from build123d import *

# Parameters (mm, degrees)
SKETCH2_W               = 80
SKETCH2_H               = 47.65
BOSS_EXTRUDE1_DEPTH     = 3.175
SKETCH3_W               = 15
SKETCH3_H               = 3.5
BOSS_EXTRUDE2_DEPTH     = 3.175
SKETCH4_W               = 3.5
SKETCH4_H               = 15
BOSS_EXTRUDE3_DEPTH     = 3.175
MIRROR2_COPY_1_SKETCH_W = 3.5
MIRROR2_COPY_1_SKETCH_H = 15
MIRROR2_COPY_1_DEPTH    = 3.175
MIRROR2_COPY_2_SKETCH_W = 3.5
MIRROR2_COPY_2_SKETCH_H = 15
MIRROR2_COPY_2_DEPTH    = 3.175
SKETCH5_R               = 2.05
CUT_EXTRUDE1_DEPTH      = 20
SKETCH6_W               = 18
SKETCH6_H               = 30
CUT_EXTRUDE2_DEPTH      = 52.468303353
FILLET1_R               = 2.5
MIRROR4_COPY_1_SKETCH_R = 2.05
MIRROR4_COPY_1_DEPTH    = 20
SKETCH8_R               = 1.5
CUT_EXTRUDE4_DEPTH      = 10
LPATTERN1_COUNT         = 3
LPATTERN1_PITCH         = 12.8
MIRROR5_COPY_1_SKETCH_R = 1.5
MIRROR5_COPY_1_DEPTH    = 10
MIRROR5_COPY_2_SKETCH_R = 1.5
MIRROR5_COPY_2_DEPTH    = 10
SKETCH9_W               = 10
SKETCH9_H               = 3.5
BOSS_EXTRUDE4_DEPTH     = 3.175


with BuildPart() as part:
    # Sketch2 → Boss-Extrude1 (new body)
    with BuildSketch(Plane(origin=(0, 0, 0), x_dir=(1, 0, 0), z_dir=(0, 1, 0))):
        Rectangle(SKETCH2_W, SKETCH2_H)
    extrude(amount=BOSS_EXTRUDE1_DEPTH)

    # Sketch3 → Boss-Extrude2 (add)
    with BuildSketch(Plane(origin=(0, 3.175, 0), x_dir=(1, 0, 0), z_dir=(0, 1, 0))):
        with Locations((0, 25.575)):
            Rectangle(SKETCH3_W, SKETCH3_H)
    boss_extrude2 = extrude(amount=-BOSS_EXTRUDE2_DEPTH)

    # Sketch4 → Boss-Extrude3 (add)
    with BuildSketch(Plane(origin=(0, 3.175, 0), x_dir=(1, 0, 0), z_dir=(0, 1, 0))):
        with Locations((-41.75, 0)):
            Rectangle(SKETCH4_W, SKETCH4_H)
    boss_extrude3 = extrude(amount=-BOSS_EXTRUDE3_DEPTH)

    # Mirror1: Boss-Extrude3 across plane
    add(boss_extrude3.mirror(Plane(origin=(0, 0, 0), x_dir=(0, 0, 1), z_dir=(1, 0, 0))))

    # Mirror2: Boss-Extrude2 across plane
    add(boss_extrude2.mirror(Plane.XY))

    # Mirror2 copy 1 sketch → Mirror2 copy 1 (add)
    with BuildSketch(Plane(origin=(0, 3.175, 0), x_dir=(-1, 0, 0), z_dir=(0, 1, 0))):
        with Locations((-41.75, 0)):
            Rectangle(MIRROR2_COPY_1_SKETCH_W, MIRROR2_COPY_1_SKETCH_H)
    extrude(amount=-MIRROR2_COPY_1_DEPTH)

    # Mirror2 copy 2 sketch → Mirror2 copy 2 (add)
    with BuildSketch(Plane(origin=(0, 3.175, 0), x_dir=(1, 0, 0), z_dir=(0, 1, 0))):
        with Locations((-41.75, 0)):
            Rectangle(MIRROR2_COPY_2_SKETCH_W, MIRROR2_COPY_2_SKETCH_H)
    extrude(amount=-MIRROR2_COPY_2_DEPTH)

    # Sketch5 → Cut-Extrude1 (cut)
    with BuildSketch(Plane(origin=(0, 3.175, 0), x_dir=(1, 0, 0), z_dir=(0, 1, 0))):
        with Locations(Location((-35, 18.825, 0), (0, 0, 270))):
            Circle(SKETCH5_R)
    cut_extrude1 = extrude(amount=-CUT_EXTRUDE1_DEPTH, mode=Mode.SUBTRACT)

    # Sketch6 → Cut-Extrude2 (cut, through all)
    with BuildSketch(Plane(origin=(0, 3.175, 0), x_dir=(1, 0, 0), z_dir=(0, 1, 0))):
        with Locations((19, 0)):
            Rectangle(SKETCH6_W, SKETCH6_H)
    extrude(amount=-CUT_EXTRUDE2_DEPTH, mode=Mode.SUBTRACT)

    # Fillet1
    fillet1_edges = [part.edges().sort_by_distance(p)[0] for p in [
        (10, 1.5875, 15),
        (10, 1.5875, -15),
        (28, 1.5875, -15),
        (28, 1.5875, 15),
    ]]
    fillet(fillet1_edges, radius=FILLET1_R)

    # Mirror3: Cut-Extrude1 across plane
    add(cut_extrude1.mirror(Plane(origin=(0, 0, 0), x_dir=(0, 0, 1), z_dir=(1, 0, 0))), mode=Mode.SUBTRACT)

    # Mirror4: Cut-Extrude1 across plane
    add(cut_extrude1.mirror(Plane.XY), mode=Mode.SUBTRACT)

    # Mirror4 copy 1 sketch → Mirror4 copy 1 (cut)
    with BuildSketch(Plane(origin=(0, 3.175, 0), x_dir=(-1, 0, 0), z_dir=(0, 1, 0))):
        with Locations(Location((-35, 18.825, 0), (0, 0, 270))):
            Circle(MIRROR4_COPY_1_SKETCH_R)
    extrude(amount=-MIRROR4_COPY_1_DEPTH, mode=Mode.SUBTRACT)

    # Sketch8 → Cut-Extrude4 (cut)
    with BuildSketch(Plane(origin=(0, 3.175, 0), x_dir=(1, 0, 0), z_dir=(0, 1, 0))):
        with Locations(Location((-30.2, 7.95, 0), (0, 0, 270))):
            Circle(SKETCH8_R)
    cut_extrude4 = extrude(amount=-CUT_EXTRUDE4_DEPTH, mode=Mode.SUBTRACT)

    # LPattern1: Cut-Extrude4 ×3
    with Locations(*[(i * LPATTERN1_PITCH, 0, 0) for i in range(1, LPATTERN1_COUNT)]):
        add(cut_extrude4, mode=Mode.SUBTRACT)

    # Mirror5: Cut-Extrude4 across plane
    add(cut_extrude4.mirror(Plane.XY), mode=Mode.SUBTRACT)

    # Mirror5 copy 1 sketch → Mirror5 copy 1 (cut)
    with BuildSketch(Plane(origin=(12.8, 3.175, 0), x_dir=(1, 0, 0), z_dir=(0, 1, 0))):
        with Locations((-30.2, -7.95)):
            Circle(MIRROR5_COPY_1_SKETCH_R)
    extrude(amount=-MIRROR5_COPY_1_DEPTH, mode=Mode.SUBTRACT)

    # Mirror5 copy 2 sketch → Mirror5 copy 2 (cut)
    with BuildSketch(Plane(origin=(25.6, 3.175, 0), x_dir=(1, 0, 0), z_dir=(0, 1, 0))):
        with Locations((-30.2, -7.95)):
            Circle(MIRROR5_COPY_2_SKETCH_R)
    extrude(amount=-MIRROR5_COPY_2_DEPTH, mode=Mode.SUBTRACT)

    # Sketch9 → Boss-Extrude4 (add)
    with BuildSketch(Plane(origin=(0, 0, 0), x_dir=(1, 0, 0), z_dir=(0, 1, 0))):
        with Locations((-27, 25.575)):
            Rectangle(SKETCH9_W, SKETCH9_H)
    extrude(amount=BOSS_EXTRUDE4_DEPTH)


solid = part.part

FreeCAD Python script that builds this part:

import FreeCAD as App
import Part
import Sketcher


def edges_at(feature, points):
    """Names of the edges that pass closest to the given points."""
    edges = feature.Shape.Edges
    near = lambda p: min(range(len(edges)), key=lambda i: edges[i].distToShape(Part.Vertex(*p))[0])
    return sorted({f"Edge{near(p) + 1}" for p in points})

doc = App.newDocument("Part")
body = doc.addObject("PartDesign::Body", "Body")

sketch1 = body.newObject("Sketcher::SketchObject", "Sketch")
sketch1.AttachmentSupport = (doc.getObject("XZ_Plane"), [""])
sketch1.MapMode = "FlatFace"
sketch1.addGeometry(Part.LineSegment(App.Vector(-40, -23.825, 0), App.Vector(-40, 23.825, 0)), False)
sketch1.addGeometry(Part.LineSegment(App.Vector(-40, 23.825, 0), App.Vector(40, 23.825, 0)), False)
sketch1.addGeometry(Part.LineSegment(App.Vector(40, 23.825, 0), App.Vector(40, -23.825, 0)), False)
sketch1.addGeometry(Part.LineSegment(App.Vector(40, -23.825, 0), App.Vector(-40, -23.825, 0)), False)
sketch1.addConstraint(Sketcher.Constraint("Coincident", 0, 2, 1, 1))
sketch1.addConstraint(Sketcher.Constraint("Coincident", 1, 2, 2, 1))
sketch1.addConstraint(Sketcher.Constraint("Coincident", 2, 2, 3, 1))
sketch1.addConstraint(Sketcher.Constraint("Coincident", 3, 2, 0, 1))
sketch1.addConstraint(Sketcher.Constraint("Vertical", 0))
sketch1.addConstraint(Sketcher.Constraint("Horizontal", 1))
sketch1.addConstraint(Sketcher.Constraint("Vertical", 2))
sketch1.addConstraint(Sketcher.Constraint("Horizontal", 3))
sketch1.addConstraint(Sketcher.Constraint("Symmetric", 0, 2, 2, 2, -1, 1))
sketch1.addConstraint(Sketcher.Constraint("DistanceX", 1, 1, 1, 2, 80.0))
sketch1.addConstraint(Sketcher.Constraint("DistanceY", 0, 1, 0, 2, 47.65))
pad1 = body.newObject("PartDesign::Pad", "Pad")
pad1.Profile = sketch1
pad1.Length = 3.175
pad1.Reversed = True

sketch2 = body.newObject("Sketcher::SketchObject", "Sketch001")
sketch2.AttachmentSupport = (doc.getObject("XZ_Plane"), [""])
sketch2.MapMode = "FlatFace"
sketch2.AttachmentOffset = App.Placement(App.Vector(0, 0, -3.175), App.Rotation())
sketch2.addGeometry(Part.LineSegment(App.Vector(-7.5, -27.325, 0), App.Vector(-7.5, -23.825, 0)), False)
sketch2.addGeometry(Part.LineSegment(App.Vector(-7.5, -23.825, 0), App.Vector(7.5, -23.825, 0)), False)
sketch2.addGeometry(Part.LineSegment(App.Vector(7.5, -23.825, 0), App.Vector(7.5, -27.325, 0)), False)
sketch2.addGeometry(Part.LineSegment(App.Vector(7.5, -27.325, 0), App.Vector(-7.5, -27.325, 0)), False)
sketch2.addConstraint(Sketcher.Constraint("Coincident", 0, 2, 1, 1))
sketch2.addConstraint(Sketcher.Constraint("Coincident", 1, 2, 2, 1))
sketch2.addConstraint(Sketcher.Constraint("Coincident", 2, 2, 3, 1))
sketch2.addConstraint(Sketcher.Constraint("Coincident", 3, 2, 0, 1))
sketch2.addConstraint(Sketcher.Constraint("Vertical", 0))
sketch2.addConstraint(Sketcher.Constraint("Horizontal", 1))
sketch2.addConstraint(Sketcher.Constraint("Vertical", 2))
sketch2.addConstraint(Sketcher.Constraint("Horizontal", 3))
sketch2.addConstraint(Sketcher.Constraint("DistanceX", 1, 1, 1, 2, 15.0))
sketch2.addConstraint(Sketcher.Constraint("DistanceY", 0, 1, 0, 2, 3.5))
sketch2.addConstraint(Sketcher.Constraint("DistanceX", 0, 2, -1, 1, 7.5))
sketch2.addConstraint(Sketcher.Constraint("DistanceY", 0, 2, -1, 1, 23.825))
pad2 = body.newObject("PartDesign::Pad", "Pad001")
pad2.Profile = sketch2
pad2.Length = 3.175

sketch3 = body.newObject("Sketcher::SketchObject", "Sketch002")
sketch3.AttachmentSupport = (doc.getObject("XZ_Plane"), [""])
sketch3.MapMode = "FlatFace"
sketch3.AttachmentOffset = App.Placement(App.Vector(0, 0, -3.175), App.Rotation())
sketch3.addGeometry(Part.LineSegment(App.Vector(-43.5, -7.5, 0), App.Vector(-43.5, 7.5, 0)), False)
sketch3.addGeometry(Part.LineSegment(App.Vector(-43.5, 7.5, 0), App.Vector(-40, 7.5, 0)), False)
sketch3.addGeometry(Part.LineSegment(App.Vector(-40, 7.5, 0), App.Vector(-40, -7.5, 0)), False)
sketch3.addGeometry(Part.LineSegment(App.Vector(-40, -7.5, 0), App.Vector(-43.5, -7.5, 0)), False)
sketch3.addConstraint(Sketcher.Constraint("Coincident", 0, 2, 1, 1))
sketch3.addConstraint(Sketcher.Constraint("Coincident", 1, 2, 2, 1))
sketch3.addConstraint(Sketcher.Constraint("Coincident", 2, 2, 3, 1))
sketch3.addConstraint(Sketcher.Constraint("Coincident", 3, 2, 0, 1))
sketch3.addConstraint(Sketcher.Constraint("Vertical", 0))
sketch3.addConstraint(Sketcher.Constraint("Horizontal", 1))
sketch3.addConstraint(Sketcher.Constraint("Vertical", 2))
sketch3.addConstraint(Sketcher.Constraint("Horizontal", 3))
sketch3.addConstraint(Sketcher.Constraint("DistanceY", 0, 1, 0, 2, 15.0))
sketch3.addConstraint(Sketcher.Constraint("DistanceX", 1, 1, 1, 2, 3.5))
sketch3.addConstraint(Sketcher.Constraint("DistanceX", 1, 2, -1, 1, 40.0))
sketch3.addConstraint(Sketcher.Constraint("DistanceY", -1, 1, 0, 2, 7.5))
pad3 = body.newObject("PartDesign::Pad", "Pad002")
pad3.Profile = sketch3
pad3.Length = 3.175
doc.recompute()

mirrored = body.newObject("PartDesign::Mirrored", "Mirrored")
mirrored.Originals = [pad3]
mirrored.MirrorPlane = (doc.getObject("YZ_Plane"), [""])
body.Tip = mirrored
doc.recompute()

mirrored2 = body.newObject("PartDesign::Mirrored", "Mirrored001")
mirrored2.Originals = [pad2]
mirrored2.MirrorPlane = (doc.getObject("XY_Plane"), [""])
body.Tip = mirrored2

sketch4 = body.newObject("Sketcher::SketchObject", "Sketch003")
sketch4.AttachmentSupport = (doc.getObject("XZ_Plane"), [""])
sketch4.MapMode = "FlatFace"
sketch4.AttachmentOffset = App.Placement(App.Vector(0, 0, -3.175), App.Rotation())
sketch4.addGeometry(Part.LineSegment(App.Vector(43.5, 7.5, 0), App.Vector(43.5, -7.5, 0)), False)
sketch4.addGeometry(Part.LineSegment(App.Vector(43.5, -7.5, 0), App.Vector(40, -7.5, 0)), False)
sketch4.addGeometry(Part.LineSegment(App.Vector(40, -7.5, 0), App.Vector(40, 7.5, 0)), False)
sketch4.addGeometry(Part.LineSegment(App.Vector(40, 7.5, 0), App.Vector(43.5, 7.5, 0)), False)
sketch4.addConstraint(Sketcher.Constraint("Coincident", 0, 2, 1, 1))
sketch4.addConstraint(Sketcher.Constraint("Coincident", 1, 2, 2, 1))
sketch4.addConstraint(Sketcher.Constraint("Coincident", 2, 2, 3, 1))
sketch4.addConstraint(Sketcher.Constraint("Coincident", 3, 2, 0, 1))
sketch4.addConstraint(Sketcher.Constraint("Vertical", 0))
sketch4.addConstraint(Sketcher.Constraint("Horizontal", 1))
sketch4.addConstraint(Sketcher.Constraint("Vertical", 2))
sketch4.addConstraint(Sketcher.Constraint("Horizontal", 3))
sketch4.addConstraint(Sketcher.Constraint("DistanceY", 0, 2, 0, 1, 15.0))
sketch4.addConstraint(Sketcher.Constraint("DistanceX", 1, 2, 1, 1, 3.5))
sketch4.addConstraint(Sketcher.Constraint("DistanceX", -1, 1, 1, 2, 40.0))
sketch4.addConstraint(Sketcher.Constraint("DistanceY", 0, 2, -1, 1, 7.5))
pad4 = body.newObject("PartDesign::Pad", "Pad003")
pad4.Profile = sketch4
pad4.Length = 3.175

sketch5 = body.newObject("Sketcher::SketchObject", "Sketch004")
sketch5.AttachmentSupport = (doc.getObject("XZ_Plane"), [""])
sketch5.MapMode = "FlatFace"
sketch5.AttachmentOffset = App.Placement(App.Vector(0, 0, -3.175), App.Rotation())
sketch5.addGeometry(Part.LineSegment(App.Vector(-43.5, -7.5, 0), App.Vector(-43.5, 7.5, 0)), False)
sketch5.addGeometry(Part.LineSegment(App.Vector(-43.5, 7.5, 0), App.Vector(-40, 7.5, 0)), False)
sketch5.addGeometry(Part.LineSegment(App.Vector(-40, 7.5, 0), App.Vector(-40, -7.5, 0)), False)
sketch5.addGeometry(Part.LineSegment(App.Vector(-40, -7.5, 0), App.Vector(-43.5, -7.5, 0)), False)
sketch5.addConstraint(Sketcher.Constraint("Coincident", 0, 2, 1, 1))
sketch5.addConstraint(Sketcher.Constraint("Coincident", 1, 2, 2, 1))
sketch5.addConstraint(Sketcher.Constraint("Coincident", 2, 2, 3, 1))
sketch5.addConstraint(Sketcher.Constraint("Coincident", 3, 2, 0, 1))
sketch5.addConstraint(Sketcher.Constraint("Vertical", 0))
sketch5.addConstraint(Sketcher.Constraint("Horizontal", 1))
sketch5.addConstraint(Sketcher.Constraint("Vertical", 2))
sketch5.addConstraint(Sketcher.Constraint("Horizontal", 3))
sketch5.addConstraint(Sketcher.Constraint("DistanceY", 0, 1, 0, 2, 15.0))
sketch5.addConstraint(Sketcher.Constraint("DistanceX", 1, 1, 1, 2, 3.5))
sketch5.addConstraint(Sketcher.Constraint("DistanceX", 1, 2, -1, 1, 40.0))
sketch5.addConstraint(Sketcher.Constraint("DistanceY", -1, 1, 0, 2, 7.5))
pad5 = body.newObject("PartDesign::Pad", "Pad004")
pad5.Profile = sketch5
pad5.Length = 3.175

sketch6 = body.newObject("Sketcher::SketchObject", "Sketch005")
sketch6.AttachmentSupport = (doc.getObject("XZ_Plane"), [""])
sketch6.MapMode = "FlatFace"
sketch6.AttachmentOffset = App.Placement(App.Vector(0, 0, -3.175), App.Rotation())
sketch6.addGeometry(Part.Circle(App.Vector(-35, -18.825, 0), App.Vector(0, 0, 1), 2.05), False)
sketch6.addConstraint(Sketcher.Constraint("Diameter", 0, 4.1))
sketch6.addConstraint(Sketcher.Constraint("DistanceX", 0, 3, -1, 1, 35.0))
sketch6.addConstraint(Sketcher.Constraint("DistanceY", 0, 3, -1, 1, 18.825))
pocket1 = body.newObject("PartDesign::Pocket", "Pocket")
pocket1.Profile = sketch6
pocket1.Length = 20
pocket1.Reversed = True

sketch7 = body.newObject("Sketcher::SketchObject", "Sketch006")
sketch7.AttachmentSupport = (doc.getObject("XZ_Plane"), [""])
sketch7.MapMode = "FlatFace"
sketch7.AttachmentOffset = App.Placement(App.Vector(0, 0, -3.175), App.Rotation())
sketch7.addGeometry(Part.LineSegment(App.Vector(10, -15, 0), App.Vector(10, 15, 0)), False)
sketch7.addGeometry(Part.LineSegment(App.Vector(10, 15, 0), App.Vector(28, 15, 0)), False)
sketch7.addGeometry(Part.LineSegment(App.Vector(28, 15, 0), App.Vector(28, -15, 0)), False)
sketch7.addGeometry(Part.LineSegment(App.Vector(28, -15, 0), App.Vector(10, -15, 0)), False)
sketch7.addConstraint(Sketcher.Constraint("Coincident", 0, 2, 1, 1))
sketch7.addConstraint(Sketcher.Constraint("Coincident", 1, 2, 2, 1))
sketch7.addConstraint(Sketcher.Constraint("Coincident", 2, 2, 3, 1))
sketch7.addConstraint(Sketcher.Constraint("Coincident", 3, 2, 0, 1))
sketch7.addConstraint(Sketcher.Constraint("Vertical", 0))
sketch7.addConstraint(Sketcher.Constraint("Horizontal", 1))
sketch7.addConstraint(Sketcher.Constraint("Vertical", 2))
sketch7.addConstraint(Sketcher.Constraint("Horizontal", 3))
sketch7.addConstraint(Sketcher.Constraint("DistanceX", 1, 1, 1, 2, 18.0))
sketch7.addConstraint(Sketcher.Constraint("DistanceY", 0, 1, 0, 2, 30.0))
sketch7.addConstraint(Sketcher.Constraint("DistanceX", -1, 1, 0, 2, 10.0))
sketch7.addConstraint(Sketcher.Constraint("DistanceY", -1, 1, 0, 2, 15.0))
pocket2 = body.newObject("PartDesign::Pocket", "Pocket001")
pocket2.Profile = sketch7
pocket2.Type = "ThroughAll"
pocket2.Reversed = True
doc.recompute()

fillet = body.newObject("PartDesign::Fillet", "Fillet")
fillet.Base = (pocket2, edges_at(pocket2, [
    (10, 1.587, 15),
    (10, 1.587, -15),
    (28, 1.587, -15),
    (28, 1.587, 15),
]))
fillet.Radius = 2.5
doc.recompute()

mirrored3 = body.newObject("PartDesign::Mirrored", "Mirrored002")
mirrored3.Originals = [pocket1]
mirrored3.MirrorPlane = (doc.getObject("YZ_Plane"), [""])
body.Tip = mirrored3
doc.recompute()

mirrored4 = body.newObject("PartDesign::Mirrored", "Mirrored003")
mirrored4.Originals = [pocket1]
mirrored4.MirrorPlane = (doc.getObject("XY_Plane"), [""])
body.Tip = mirrored4

sketch8 = body.newObject("Sketcher::SketchObject", "Sketch007")
sketch8.AttachmentSupport = (doc.getObject("XZ_Plane"), [""])
sketch8.MapMode = "FlatFace"
sketch8.AttachmentOffset = App.Placement(App.Vector(0, 0, -3.175), App.Rotation())
sketch8.addGeometry(Part.Circle(App.Vector(35, 18.825, 0), App.Vector(0, 0, 1), 2.05), False)
sketch8.addConstraint(Sketcher.Constraint("Diameter", 0, 4.1))
sketch8.addConstraint(Sketcher.Constraint("DistanceX", -1, 1, 0, 3, 35.0))
sketch8.addConstraint(Sketcher.Constraint("DistanceY", -1, 1, 0, 3, 18.825))
pocket3 = body.newObject("PartDesign::Pocket", "Pocket002")
pocket3.Profile = sketch8
pocket3.Length = 20
pocket3.Reversed = True

sketch9 = body.newObject("Sketcher::SketchObject", "Sketch008")
sketch9.AttachmentSupport = (doc.getObject("XZ_Plane"), [""])
sketch9.MapMode = "FlatFace"
sketch9.AttachmentOffset = App.Placement(App.Vector(0, 0, -3.175), App.Rotation())
sketch9.addGeometry(Part.Circle(App.Vector(-30.2, -7.95, 0), App.Vector(0, 0, 1), 1.5), False)
sketch9.addConstraint(Sketcher.Constraint("Diameter", 0, 3.0))
sketch9.addConstraint(Sketcher.Constraint("DistanceX", 0, 3, -1, 1, 30.2))
sketch9.addConstraint(Sketcher.Constraint("DistanceY", 0, 3, -1, 1, 7.95))
pocket4 = body.newObject("PartDesign::Pocket", "Pocket003")
pocket4.Profile = sketch9
pocket4.Length = 10
pocket4.Reversed = True
doc.recompute()

linearpattern = body.newObject("PartDesign::LinearPattern", "LinearPattern")
linearpattern.Originals = [pocket4]
linearpattern.Direction = (doc.getObject("X_Axis"), [""])
linearpattern.Mode = "offset"
linearpattern.Offset = 12.8
linearpattern.Occurrences = 3
body.Tip = linearpattern
doc.recompute()

mirrored5 = body.newObject("PartDesign::Mirrored", "Mirrored004")
mirrored5.Originals = [pocket4]
mirrored5.MirrorPlane = (doc.getObject("XY_Plane"), [""])
body.Tip = mirrored5

sketch10 = body.newObject("Sketcher::SketchObject", "Sketch009")
sketch10.AttachmentSupport = (doc.getObject("XZ_Plane"), [""])
sketch10.MapMode = "FlatFace"
sketch10.AttachmentOffset = App.Placement(App.Vector(0, 0, -3.175), App.Rotation())
sketch10.addGeometry(Part.Circle(App.Vector(-17.4, 7.95, 0), App.Vector(0, 0, 1), 1.5), False)
sketch10.addConstraint(Sketcher.Constraint("Diameter", 0, 3.0))
sketch10.addConstraint(Sketcher.Constraint("DistanceX", 0, 3, -1, 1, 17.4))
sketch10.addConstraint(Sketcher.Constraint("DistanceY", -1, 1, 0, 3, 7.95))
pocket5 = body.newObject("PartDesign::Pocket", "Pocket004")
pocket5.Profile = sketch10
pocket5.Length = 10
pocket5.Reversed = True

sketch11 = body.newObject("Sketcher::SketchObject", "Sketch010")
sketch11.AttachmentSupport = (doc.getObject("XZ_Plane"), [""])
sketch11.MapMode = "FlatFace"
sketch11.AttachmentOffset = App.Placement(App.Vector(0, 0, -3.175), App.Rotation())
sketch11.addGeometry(Part.Circle(App.Vector(-4.6, 7.95, 0), App.Vector(0, 0, 1), 1.5), False)
sketch11.addConstraint(Sketcher.Constraint("Diameter", 0, 3.0))
sketch11.addConstraint(Sketcher.Constraint("DistanceX", 0, 3, -1, 1, 4.6))
sketch11.addConstraint(Sketcher.Constraint("DistanceY", -1, 1, 0, 3, 7.95))
pocket6 = body.newObject("PartDesign::Pocket", "Pocket005")
pocket6.Profile = sketch11
pocket6.Length = 10
pocket6.Reversed = True

sketch12 = body.newObject("Sketcher::SketchObject", "Sketch011")
sketch12.AttachmentSupport = (doc.getObject("XZ_Plane"), [""])
sketch12.MapMode = "FlatFace"
sketch12.addGeometry(Part.LineSegment(App.Vector(-32, -27.325, 0), App.Vector(-32, -23.825, 0)), False)
sketch12.addGeometry(Part.LineSegment(App.Vector(-32, -23.825, 0), App.Vector(-22, -23.825, 0)), False)
sketch12.addGeometry(Part.LineSegment(App.Vector(-22, -23.825, 0), App.Vector(-22, -27.325, 0)), False)
sketch12.addGeometry(Part.LineSegment(App.Vector(-22, -27.325, 0), App.Vector(-32, -27.325, 0)), False)
sketch12.addConstraint(Sketcher.Constraint("Coincident", 0, 2, 1, 1))
sketch12.addConstraint(Sketcher.Constraint("Coincident", 1, 2, 2, 1))
sketch12.addConstraint(Sketcher.Constraint("Coincident", 2, 2, 3, 1))
sketch12.addConstraint(Sketcher.Constraint("Coincident", 3, 2, 0, 1))
sketch12.addConstraint(Sketcher.Constraint("Vertical", 0))
sketch12.addConstraint(Sketcher.Constraint("Horizontal", 1))
sketch12.addConstraint(Sketcher.Constraint("Vertical", 2))
sketch12.addConstraint(Sketcher.Constraint("Horizontal", 3))
sketch12.addConstraint(Sketcher.Constraint("DistanceX", 1, 1, 1, 2, 10.0))
sketch12.addConstraint(Sketcher.Constraint("DistanceY", 0, 1, 0, 2, 3.5))
sketch12.addConstraint(Sketcher.Constraint("DistanceX", 0, 2, -1, 1, 32.0))
sketch12.addConstraint(Sketcher.Constraint("DistanceY", 0, 2, -1, 1, 23.825))
pad6 = body.newObject("PartDesign::Pad", "Pad005")
pad6.Profile = sketch12
pad6.Length = 3.175
pad6.Reversed = True

doc.recompute()
